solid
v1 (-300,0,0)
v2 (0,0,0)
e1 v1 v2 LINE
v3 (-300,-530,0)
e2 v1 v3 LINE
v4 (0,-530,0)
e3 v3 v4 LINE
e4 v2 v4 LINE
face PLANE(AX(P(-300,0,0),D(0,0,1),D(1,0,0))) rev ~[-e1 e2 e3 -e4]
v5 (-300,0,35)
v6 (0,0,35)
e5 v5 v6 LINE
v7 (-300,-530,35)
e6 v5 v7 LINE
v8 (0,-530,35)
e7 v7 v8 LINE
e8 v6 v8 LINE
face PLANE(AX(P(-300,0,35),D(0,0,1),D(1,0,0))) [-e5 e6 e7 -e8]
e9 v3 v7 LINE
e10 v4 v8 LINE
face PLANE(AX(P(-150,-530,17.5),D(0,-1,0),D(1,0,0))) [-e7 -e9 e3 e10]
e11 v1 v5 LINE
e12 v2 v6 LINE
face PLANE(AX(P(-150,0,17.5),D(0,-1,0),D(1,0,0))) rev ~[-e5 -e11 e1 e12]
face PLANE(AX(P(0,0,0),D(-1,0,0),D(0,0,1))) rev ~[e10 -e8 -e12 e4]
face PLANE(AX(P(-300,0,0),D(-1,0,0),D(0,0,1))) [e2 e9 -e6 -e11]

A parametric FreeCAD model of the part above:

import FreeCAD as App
import Part
import Sketcher
from FreeCAD import Vector
Q = App.Units.Quantity

doc = App.newDocument("Part")
body = doc.addObject("PartDesign::Body", "Body")

# Sketch on XZ plane
sketch1 = doc.addObject("Sketcher::SketchObject", "Sketch")
body.addObject(sketch1)
sketch1.AttachmentSupport = (doc.XZ_Plane, [""])
sketch1.MapMode = "FlatFace"
sketch1.addGeometry([
    Part.LineSegment(Vector(-300, 35, 0), Vector(-300, 0, 0)),
    Part.LineSegment(Vector(-300, 0, 0), Vector(0, 0, 0)),
    Part.LineSegment(Vector(0, 0, 0), Vector(0, 35, 0)),
    Part.LineSegment(Vector(0, 35, 0), Vector(-300, 35, 0)),
], False)
sketch1.addConstraint([
    Sketcher.Constraint("Coincident", 0, 2, 1, 1),
    Sketcher.Constraint("Coincident", 1, 2, 2, 1),
    Sketcher.Constraint("Coincident", 2, 2, 3, 1),
    Sketcher.Constraint("Coincident", 3, 2, 0, 1),
    Sketcher.Constraint("Vertical", 0),
    Sketcher.Constraint("Horizontal", 1),
    Sketcher.Constraint("Vertical", 2),
    Sketcher.Constraint("Horizontal", 3),
    Sketcher.Constraint("Coincident", 1, 2, -1, 1),
    Sketcher.Constraint("DistanceX", 1, 1, 1, 2, Q("300 mm")),
    Sketcher.Constraint("DistanceY", 0, 2, 0, 1, Q("35 mm")),
])
pad1 = doc.addObject("PartDesign::Pad", "Pad")
body.addObject(pad1)
pad1.Profile = sketch1
pad1.Length = 530

doc.recompute()
